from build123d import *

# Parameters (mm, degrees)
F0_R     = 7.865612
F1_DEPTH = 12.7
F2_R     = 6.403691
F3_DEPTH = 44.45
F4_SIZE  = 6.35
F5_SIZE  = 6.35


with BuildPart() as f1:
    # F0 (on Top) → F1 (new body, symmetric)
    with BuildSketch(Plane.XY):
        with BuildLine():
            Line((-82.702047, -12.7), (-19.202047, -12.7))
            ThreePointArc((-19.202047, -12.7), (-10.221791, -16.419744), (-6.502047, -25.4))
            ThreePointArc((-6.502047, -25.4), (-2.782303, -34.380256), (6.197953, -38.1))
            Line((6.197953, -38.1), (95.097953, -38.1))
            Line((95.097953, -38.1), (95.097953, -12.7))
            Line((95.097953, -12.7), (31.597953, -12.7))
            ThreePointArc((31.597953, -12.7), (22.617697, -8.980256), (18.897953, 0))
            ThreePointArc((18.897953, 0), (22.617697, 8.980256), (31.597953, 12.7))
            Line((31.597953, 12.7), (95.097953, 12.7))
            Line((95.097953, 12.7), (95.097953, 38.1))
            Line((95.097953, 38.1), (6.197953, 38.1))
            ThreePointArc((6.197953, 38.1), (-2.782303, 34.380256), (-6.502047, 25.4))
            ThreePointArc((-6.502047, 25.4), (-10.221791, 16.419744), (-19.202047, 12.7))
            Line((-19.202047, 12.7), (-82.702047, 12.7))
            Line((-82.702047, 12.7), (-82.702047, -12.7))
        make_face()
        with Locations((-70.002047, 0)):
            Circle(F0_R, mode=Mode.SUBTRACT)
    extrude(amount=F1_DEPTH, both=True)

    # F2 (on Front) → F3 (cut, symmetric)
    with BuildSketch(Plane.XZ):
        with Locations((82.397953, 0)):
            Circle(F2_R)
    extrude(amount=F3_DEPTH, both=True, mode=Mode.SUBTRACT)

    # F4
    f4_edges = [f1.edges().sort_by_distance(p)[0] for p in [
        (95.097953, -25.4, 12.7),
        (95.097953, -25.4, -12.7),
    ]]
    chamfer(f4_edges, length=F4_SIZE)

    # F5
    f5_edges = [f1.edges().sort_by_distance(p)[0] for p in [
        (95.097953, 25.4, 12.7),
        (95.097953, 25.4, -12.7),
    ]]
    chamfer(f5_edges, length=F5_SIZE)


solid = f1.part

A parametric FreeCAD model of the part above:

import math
import FreeCAD as App
import Part
import Sketcher
from FreeCAD import Vector
Q = App.Units.Quantity


def edges_at(feature, points):
    """Names of the edges that pass closest to the given points."""
    edges = feature.Shape.Edges
    near = lambda p: min(range(len(edges)), key=lambda i: edges[i].distToShape(Part.Vertex(*p))[0])
    return sorted({f"Edge{near(p) + 1}" for p in points})

doc = App.newDocument("Part")
body = doc.addObject("PartDesign::Body", "Body")

# Sketch on XY plane
sketch1 = body.newObject("Sketcher::SketchObject", "Sketch")
sketch1.AttachmentSupport = (doc.getObject("XY_Plane"), [""])
sketch1.MapMode = "FlatFace"
sketch1.addGeometry([
    Part.LineSegment(Vector(-82.702047, -12.7, 0), Vector(-19.202047, -12.7, 0)),  # 0
    Part.ArcOfCircle(Part.Circle(Vector(-19.202047, -25.4, 0), Vector(0, 0, 1), 12.7), math.radians(0.000002), math.radians(89.999998)),  # 1
    Part.ArcOfCircle(Part.Circle(Vector(6.197953, -25.4, 0), Vector(0, 0, 1), 12.7), math.radians(-179.999998), math.radians(-90.000002)),  # 2
    Part.LineSegment(Vector(6.197953, -38.1, 0), Vector(95.097953, -38.1, 0)),  # 3
    Part.LineSegment(Vector(95.097953, -38.1, 0), Vector(95.097953, -12.7, 0)),  # 4
    Part.LineSegment(Vector(95.097953, -12.7, 0), Vector(31.597953, -12.7, 0)),  # 5
    Part.ArcOfCircle(Part.Circle(Vector(31.597953, 0, 0), Vector(0, 0, 1), 12.7), math.radians(-179.999998), math.radians(-90.000002)),  # 6
    Part.ArcOfCircle(Part.Circle(Vector(31.597953, 0, 0), Vector(0, 0, 1), 12.7), math.radians(90.000002), math.radians(179.999998)),  # 7
    Part.LineSegment(Vector(31.597953, 12.7, 0), Vector(95.097953, 12.7, 0)),  # 8
    Part.LineSegment(Vector(95.097953, 12.7, 0), Vector(95.097953, 38.1, 0)),  # 9
    Part.LineSegment(Vector(95.097953, 38.1, 0), Vector(6.197953, 38.1, 0)),  # 10
    Part.ArcOfCircle(Part.Circle(Vector(6.197953, 25.4, 0), Vector(0, 0, 1), 12.7), math.radians(90.000002), math.radians(179.999998)),  # 11
    Part.ArcOfCircle(Part.Circle(Vector(-19.202047, 25.4, 0), Vector(0, 0, 1), 12.7), math.radians(-89.999998), math.radians(-0.000002)),  # 12
    Part.LineSegment(Vector(-19.202047, 12.7, 0), Vector(-82.702047, 12.7, 0)),  # 13
    Part.LineSegment(Vector(-82.702047, 12.7, 0), Vector(-82.702047, -12.7, 0)),  # 14
    Part.Circle(Vector(-70.002047, 0, 0), Vector(0, 0, 1), 7.865612),  # 15
], False)
sketch1.addConstraint([
    Sketcher.Constraint("Tangent", 0, 2, 1, 2),
    Sketcher.Constraint("Tangent", 1, 1, 2, 1),
    Sketcher.Constraint("Tangent", 2, 2, 3, 1),
    Sketcher.Constraint("Coincident", 3, 2, 4, 1),
    Sketcher.Constraint("Coincident", 4, 2, 5, 1),
    Sketcher.Constraint("Tangent", 5, 2, 6, 2),
    Sketcher.Constraint("Tangent", 6, 1, 7, 2),
    Sketcher.Constraint("Tangent", 7, 1, 8, 1),
    Sketcher.Constraint("Coincident", 8, 2, 9, 1),
    Sketcher.Constraint("Coincident", 9, 2, 10, 1),
    Sketcher.Constraint("Tangent", 10, 2, 11, 1),
    Sketcher.Constraint("Tangent", 11, 2, 12, 2),
    Sketcher.Constraint("Tangent", 12, 1, 13, 1),
    Sketcher.Constraint("Coincident", 13, 2, 14, 1),
    Sketcher.Constraint("Coincident", 14, 2, 0, 1),
    Sketcher.Constraint("Horizontal", 0),
    Sketcher.Constraint("Horizontal", 3),
    Sketcher.Constraint("Vertical", 4),
    Sketcher.Constraint("Horizontal", 5),
    Sketcher.Constraint("Horizontal", 8),
    Sketcher.Constraint("Vertical", 9),
    Sketcher.Constraint("Horizontal", 10),
    Sketcher.Constraint("Horizontal", 13),
    Sketcher.Constraint("Vertical", 14),
    Sketcher.Constraint("Equal", 1, 2),
    Sketcher.Constraint("Equal", 2, 6),
    Sketcher.Constraint("Equal", 6, 7),
    Sketcher.Constraint("Equal", 7, 11),
    Sketcher.Constraint("Equal", 11, 12),
    Sketcher.Constraint("Symmetric", 2, 3, 11, 3, -1),
    Sketcher.Constraint("Symmetric", 4, 2, 8, 2, -1),
    Sketcher.Constraint("PointOnObject", 15, 3, -1),
    Sketcher.Constraint("PointOnObject", 6, 1, -1),
    Sketcher.Constraint("Horizontal", 1, 3, 2, 3),
    Sketcher.Constraint("Horizontal", 11, 3, 12, 3),
    Sketcher.Constraint("Horizontal", 0, 2, 4, 2),
    Sketcher.Constraint("Equal", 0, 5),
    Sketcher.Constraint("Radius", 1, Q("0.5 in")),
    Sketcher.Constraint("DistanceX", 0, 1, 0, 2, Q("2.5 in")),
    Sketcher.Constraint("DistanceX", 3, 1, 3, 2, Q("3.5 in")),
    Sketcher.Constraint("DistanceX", 15, 3, 1, 3, Q("2 in")),
    Sketcher.Constraint("Diameter", 15, Q("15.731224 mm")),
    Sketcher.Constraint("DistanceX", 1, 3, -1, 1, Q("19.202047 mm")),
])
pad1 = body.newObject("PartDesign::Pad", "Pad")
pad1.Profile = sketch1
pad1.Length = Q("1 in")
pad1.Midplane = True

# Sketch on XZ plane
sketch2 = body.newObject("Sketcher::SketchObject", "Sketch001")
sketch2.AttachmentSupport = (doc.getObject("XZ_Plane"), [""])
sketch2.MapMode = "FlatFace"
sketch2.addGeometry(Part.Circle(Vector(82.397953, 0, 0), Vector(0, 0, 1), 6.403691), False)
sketch2.addConstraint([
    Sketcher.Constraint("PointOnObject", 0, 3, -1),
    Sketcher.Constraint("Diameter", 0, Q("12.807382 mm")),
    Sketcher.Constraint("DistanceX", -1, 1, 0, 3, Q("82.397953 mm")),
])
pocket1 = body.newObject("PartDesign::Pocket", "Pocket")
pocket1.Profile = sketch2
pocket1.Length = Q("3.5 in")
pocket1.Midplane = True
doc.recompute()

chamfer = body.newObject("PartDesign::Chamfer", "Chamfer")
chamfer.Base = (pocket1, edges_at(pocket1, [(95.098, -25.4, 12.7), (95.098, -25.4, -12.7)]))
chamfer.Size = Q("0.25 in")
doc.recompute()

chamfer2 = body.newObject("PartDesign::Chamfer", "Chamfer001")
chamfer2.Base = (chamfer, edges_at(chamfer, [(95.098, 25.4, 12.7), (95.098, 25.4, -12.7)]))
chamfer2.Size = Q("0.25 in")

doc.recompute()
